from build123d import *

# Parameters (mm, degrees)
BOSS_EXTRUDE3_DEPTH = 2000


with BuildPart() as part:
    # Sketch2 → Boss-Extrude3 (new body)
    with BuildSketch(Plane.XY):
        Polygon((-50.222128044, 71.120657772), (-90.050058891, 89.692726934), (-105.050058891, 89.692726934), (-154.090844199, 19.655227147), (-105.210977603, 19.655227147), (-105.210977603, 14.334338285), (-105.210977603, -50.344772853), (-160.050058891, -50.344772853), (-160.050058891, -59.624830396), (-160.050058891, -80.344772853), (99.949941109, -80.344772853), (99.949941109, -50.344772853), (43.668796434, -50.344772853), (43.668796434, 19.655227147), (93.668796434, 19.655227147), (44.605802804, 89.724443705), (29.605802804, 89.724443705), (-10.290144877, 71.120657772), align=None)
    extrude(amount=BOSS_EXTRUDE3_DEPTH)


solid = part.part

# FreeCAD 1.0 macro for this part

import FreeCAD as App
import Part
import Sketcher
Q = App.Units.Quantity

doc = App.newDocument("Part")
body = doc.addObject("PartDesign::Body", "Body")

sketch1 = body.newObject("Sketcher::SketchObject", "Sketch")
sketch1.AttachmentSupport = (doc.getObject("XY_Plane"), [""])
sketch1.MapMode = "FlatFace"
sketch1.addGeometry(Part.LineSegment(App.Vector(-50.222128, 71.120658, 0), App.Vector(-90.050059, 89.692727, 0)), False)
sketch1.addGeometry(Part.LineSegment(App.Vector(-90.050059, 89.692727, 0), App.Vector(-105.050059, 89.692727, 0)), False)
sketch1.addGeometry(Part.LineSegment(App.Vector(-105.050059, 89.692727, 0), App.Vector(-154.090844, 19.655227, 0)), False)
sketch1.addGeometry(Part.LineSegment(App.Vector(-154.090844, 19.655227, 0), App.Vector(-105.210978, 19.655227, 0)), False)
sketch1.addGeometry(Part.LineSegment(App.Vector(-105.210978, 19.655227, 0), App.Vector(-105.210978, -50.344773, 0)), False)
sketch1.addGeometry(Part.LineSegment(App.Vector(-105.210978, -50.344773, 0), App.Vector(-160.050059, -50.344773, 0)), False)
sketch1.addGeometry(Part.LineSegment(App.Vector(-160.050059, -50.344773, 0), App.Vector(-160.050059, -80.344773, 0)), False)
sketch1.addGeometry(Part.LineSegment(App.Vector(-160.050059, -80.344773, 0), App.Vector(99.949941, -80.344773, 0)), False)
sketch1.addGeometry(Part.LineSegment(App.Vector(99.949941, -80.344773, 0), App.Vector(99.949941, -50.344773, 0)), False)
sketch1.addGeometry(Part.LineSegment(App.Vector(99.949941, -50.344773, 0), App.Vector(43.668796, -50.344773, 0)), False)
sketch1.addGeometry(Part.LineSegment(App.Vector(43.668796, -50.344773, 0), App.Vector(43.668796, 19.655227, 0)), False)
sketch1.addGeometry(Part.LineSegment(App.Vector(43.668796, 19.655227, 0), App.Vector(93.668796, 19.655227, 0)), False)
sketch1.addGeometry(Part.LineSegment(App.Vector(93.668796, 19.655227, 0), App.Vector(44.605803, 89.724444, 0)), False)
sketch1.addGeometry(Part.LineSegment(App.Vector(44.605803, 89.724444, 0), App.Vector(29.605803, 89.724444, 0)), False)
sketch1.addGeometry(Part.LineSegment(App.Vector(29.605803, 89.724444, 0), App.Vector(-10.290145, 71.120658, 0)), False)
sketch1.addGeometry(Part.LineSegment(App.Vector(-10.290145, 71.120658, 0), App.Vector(-50.222128, 71.120658, 0)), False)
sketch1.addConstraint(Sketcher.Constraint("Coincident", 0, 2, 1, 1))
sketch1.addConstraint(Sketcher.Constraint("Coincident", 1, 2, 2, 1))
sketch1.addConstraint(Sketcher.Constraint("Coincident", 2, 2, 3, 1))
sketch1.addConstraint(Sketcher.Constraint("Coincident", 3, 2, 4, 1))
sketch1.addConstraint(Sketcher.Constraint("Coincident", 4, 2, 5, 1))
sketch1.addConstraint(Sketcher.Constraint("Coincident", 5, 2, 6, 1))
sketch1.addConstraint(Sketcher.Constraint("Coincident", 6, 2, 7, 1))
sketch1.addConstraint(Sketcher.Constraint("Coincident", 7, 2, 8, 1))
sketch1.addConstraint(Sketcher.Constraint("Coincident", 8, 2, 9, 1))
sketch1.addConstraint(Sketcher.Constraint("Coincident", 9, 2, 10, 1))
sketch1.addConstraint(Sketcher.Constraint("Coincident", 10, 2, 11, 1))
sketch1.addConstraint(Sketcher.Constraint("Coincident", 11, 2, 12, 1))
sketch1.addConstraint(Sketcher.Constraint("Coincident", 12, 2, 13, 1))
sketch1.addConstraint(Sketcher.Constraint("Coincident", 13, 2, 14, 1))
sketch1.addConstraint(Sketcher.Constraint("Coincident", 14, 2, 15, 1))
sketch1.addConstraint(Sketcher.Constraint("Coincident", 15, 2, 0, 1))
sketch1.addConstraint(Sketcher.Constraint("Horizontal", 1))
sketch1.addConstraint(Sketcher.Constraint("Horizontal", 3))
sketch1.addConstraint(Sketcher.Constraint("Vertical", 4))
sketch1.addConstraint(Sketcher.Constraint("Horizontal", 5))
sketch1.addConstraint(Sketcher.Constraint("Vertical", 6))
sketch1.addConstraint(Sketcher.Constraint("Horizontal", 7))
sketch1.addConstraint(Sketcher.Constraint("Vertical", 8))
sketch1.addConstraint(Sketcher.Constraint("Horizontal", 9))
sketch1.addConstraint(Sketcher.Constraint("Vertical", 10))
sketch1.addConstraint(Sketcher.Constraint("Horizontal", 11))
sketch1.addConstraint(Sketcher.Constraint("Horizontal", 13))
sketch1.addConstraint(Sketcher.Constraint("Horizontal", 15))
sketch1.addConstraint(Sketcher.Constraint("Horizontal", 5, 2, 8, 2))
sketch1.addConstraint(Sketcher.Constraint("Horizontal", 3, 2, 10, 2))
sketch1.addConstraint(Sketcher.Constraint("Equal", 1, 13))
sketch1.addConstraint(Sketcher.Constraint("DistanceX", 1, 2, 1, 1, Q("15 mm")))
sketch1.addConstraint(Sketcher.Constraint("DistanceX", 7, 1, 7, 2, Q("260 mm")))
sketch1.addConstraint(Sketcher.Constraint("DistanceX", 11, 1, 11, 2, Q("50 mm")))
sketch1.addConstraint(Sketcher.Constraint("DistanceY", 4, 2, 4, 1, Q("70 mm")))
sketch1.addConstraint(Sketcher.Constraint("DistanceY", 6, 2, 6, 1, Q("30 mm")))
sketch1.addConstraint(Sketcher.Constraint("Angle", 0, Q("155 deg")))
sketch1.addConstraint(Sketcher.Constraint("Angle", 2, Q("-125 deg")))
sketch1.addConstraint(Sketcher.Constraint("Angle", 12, Q("125 deg")))
sketch1.addConstraint(Sketcher.Constraint("Angle", 14, Q("-155 deg")))
sketch1.addConstraint(Sketcher.Constraint("DistanceX", 5, 2, 1, 2, Q("55 mm")))
sketch1.addConstraint(Sketcher.Constraint("Distance", 2, Q("85.5 mm")))
sketch1.addConstraint(Sketcher.Constraint("DistanceX", 5, 2, 5, 1, Q("54.839081 mm")))
sketch1.addConstraint(Sketcher.Constraint("Distance", 0, Q("43.945259 mm")))
sketch1.addConstraint(Sketcher.Constraint("Distance", 12, Q("85.538719 mm")))
sketch1.addConstraint(Sketcher.Constraint("DistanceX", 9, 2, 9, 1, Q("56.281145 mm")))
sketch1.addConstraint(Sketcher.Constraint("DistanceX", 0, 2, -1, 1, Q("90.050059 mm")))
sketch1.addConstraint(Sketcher.Constraint("DistanceY", -1, 1, 0, 2, Q("89.692727 mm")))
pad1 = body.newObject("PartDesign::Pad", "Pad")
pad1.Profile = sketch1
pad1.Length = 2000

doc.recompute()
